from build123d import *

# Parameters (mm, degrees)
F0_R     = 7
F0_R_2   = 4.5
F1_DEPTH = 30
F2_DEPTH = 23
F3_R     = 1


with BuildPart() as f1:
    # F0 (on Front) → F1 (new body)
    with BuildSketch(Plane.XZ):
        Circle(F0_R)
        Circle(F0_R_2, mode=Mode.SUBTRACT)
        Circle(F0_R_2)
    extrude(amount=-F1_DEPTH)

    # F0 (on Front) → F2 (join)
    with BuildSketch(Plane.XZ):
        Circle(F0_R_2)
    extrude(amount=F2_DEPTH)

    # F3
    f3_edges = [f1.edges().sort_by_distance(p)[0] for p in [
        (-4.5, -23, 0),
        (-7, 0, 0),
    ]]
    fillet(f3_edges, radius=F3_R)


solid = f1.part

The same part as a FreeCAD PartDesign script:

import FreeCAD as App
import Part
import Sketcher
Q = App.Units.Quantity


def edges_at(feature, points):
    """Names of the edges that pass closest to the given points."""
    edges = feature.Shape.Edges
    near = lambda p: min(range(len(edges)), key=lambda i: edges[i].distToShape(Part.Vertex(*p))[0])
    return sorted({f"Edge{near(p) + 1}" for p in points})

doc = App.newDocument("Part")
body = doc.addObject("PartDesign::Body", "Body")

sketch1 = body.newObject("Sketcher::SketchObject", "Sketch")
sketch1.AttachmentSupport = (doc.getObject("XZ_Plane"), [""])
sketch1.MapMode = "FlatFace"
sketch1.addGeometry(Part.Circle(App.Vector(0, 0, 0), App.Vector(0, 0, 1), 7), False)
sketch1.addConstraint(Sketcher.Constraint("Coincident", 0, 3, -1, 1))
sketch1.addConstraint(Sketcher.Constraint("Diameter", 0, Q("14 mm")))
pad1 = body.newObject("PartDesign::Pad", "Pad")
pad1.Profile = sketch1
pad1.Length = 30
pad1.Reversed = True

sketch2 = body.newObject("Sketcher::SketchObject", "Sketch001")
sketch2.AttachmentSupport = (doc.getObject("XZ_Plane"), [""])
sketch2.MapMode = "FlatFace"
sketch2.addGeometry(Part.Circle(App.Vector(0, 0, 0), App.Vector(0, 0, 1), 4.5), False)
sketch2.addConstraint(Sketcher.Constraint("Coincident", 0, 3, -1, 1))
sketch2.addConstraint(Sketcher.Constraint("Diameter", 0, Q("9 mm")))
pad2 = body.newObject("PartDesign::Pad", "Pad001")
pad2.Profile = sketch2
pad2.Length = 23
doc.recompute()

fillet = body.newObject("PartDesign::Fillet", "Fillet")
fillet.Base = (pad2, edges_at(pad2, [(-4.5, -23, 0), (-7, 0, 0)]))
fillet.Radius = 1

doc.recompute()
